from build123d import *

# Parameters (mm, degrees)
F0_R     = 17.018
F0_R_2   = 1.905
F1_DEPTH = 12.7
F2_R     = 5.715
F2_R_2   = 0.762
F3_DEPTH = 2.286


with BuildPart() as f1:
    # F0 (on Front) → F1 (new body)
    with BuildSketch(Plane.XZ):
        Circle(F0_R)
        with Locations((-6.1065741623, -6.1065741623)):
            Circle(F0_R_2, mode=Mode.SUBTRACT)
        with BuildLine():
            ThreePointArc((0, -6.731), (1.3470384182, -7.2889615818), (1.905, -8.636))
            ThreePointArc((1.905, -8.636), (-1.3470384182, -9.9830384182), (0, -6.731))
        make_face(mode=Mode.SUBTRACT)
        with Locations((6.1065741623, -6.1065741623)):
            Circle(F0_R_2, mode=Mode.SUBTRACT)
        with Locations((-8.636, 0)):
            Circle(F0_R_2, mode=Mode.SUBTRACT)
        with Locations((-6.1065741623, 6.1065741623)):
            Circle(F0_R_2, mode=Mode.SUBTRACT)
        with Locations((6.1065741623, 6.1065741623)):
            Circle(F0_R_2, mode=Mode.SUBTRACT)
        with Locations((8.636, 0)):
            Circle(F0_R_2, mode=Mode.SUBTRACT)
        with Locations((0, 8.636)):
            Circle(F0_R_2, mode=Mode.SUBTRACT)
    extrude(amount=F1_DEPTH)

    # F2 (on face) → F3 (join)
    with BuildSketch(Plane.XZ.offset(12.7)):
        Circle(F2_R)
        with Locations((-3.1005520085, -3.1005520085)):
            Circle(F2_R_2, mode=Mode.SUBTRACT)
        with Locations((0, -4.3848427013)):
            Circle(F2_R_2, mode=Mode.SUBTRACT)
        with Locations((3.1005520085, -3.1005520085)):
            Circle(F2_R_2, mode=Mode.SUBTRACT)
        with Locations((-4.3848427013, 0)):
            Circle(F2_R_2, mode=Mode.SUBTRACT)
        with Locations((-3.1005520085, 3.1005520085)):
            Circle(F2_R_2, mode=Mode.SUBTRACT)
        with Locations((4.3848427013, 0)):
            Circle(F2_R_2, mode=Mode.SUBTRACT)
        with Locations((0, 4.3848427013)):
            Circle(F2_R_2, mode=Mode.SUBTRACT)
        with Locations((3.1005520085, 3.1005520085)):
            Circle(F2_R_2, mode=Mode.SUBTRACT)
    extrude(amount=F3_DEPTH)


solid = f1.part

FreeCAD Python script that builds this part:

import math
import FreeCAD as App
import Part
import Sketcher
from FreeCAD import Vector
Q = App.Units.Quantity

doc = App.newDocument("Part")
params = doc.addObject("Spreadsheet::Sheet", "Params")
for row, (alias, value) in enumerate([
    ("sketch1_diameter", "1.34 in"),
    ("sketch1_diameter2", "0.15 in"),
    ("pad1_length", "0.5 in"),
    ("sketch2_diameter", "0.45 in"),
    ("sketch2_diameter2", "0.06 in"),
    ("pad2_length", "0.09 in"),
], start=1):
    params.set(f"A{row}", alias)
    params.set(f"B{row}", "=" + value)
    params.setAlias(f"B{row}", alias)

body = doc.addObject("PartDesign::Body", "Body")

sketch1 = body.newObject("Sketcher::SketchObject", "Sketch")
sketch1.AttachmentSupport = (doc.getObject("XZ_Plane"), [""])
sketch1.MapMode = "FlatFace"
sketch1.addGeometry([
    Part.Circle(Vector(0, 0, 0), Vector(0, 0, 1), 17),
    Part.Circle(Vector(-6.1, -6.1, 0), Vector(0, 0, 1), 1.9),
    Part.ArcOfCircle(Part.Circle(Vector(0, -8.6, 0), Vector(0, 0, 1), 1.9), math.radians(90), math.radians(360)),
    Part.ArcOfCircle(Part.Circle(Vector(0, -8.6, 0), Vector(0, 0, 1), 1.9), math.radians(0), math.radians(90)),
    Part.Circle(Vector(6.1, -6.1, 0), Vector(0, 0, 1), 1.9),
    Part.Circle(Vector(-8.6, 0, 0), Vector(0, 0, 1), 1.9),
    Part.Circle(Vector(-6.1, 6.1, 0), Vector(0, 0, 1), 1.9),
    Part.Circle(Vector(0, 8.6, 0), Vector(0, 0, 1), 1.9),
    Part.Circle(Vector(8.6, 0, 0), Vector(0, 0, 1), 1.9),
    Part.Circle(Vector(6.1, 6.1, 0), Vector(0, 0, 1), 1.9),
], False)
sketch1.addConstraint([
    Sketcher.Constraint("Tangent", 2, 1, 3, 2),
    Sketcher.Constraint("Coincident", 3, 1, 2, 2),
    Sketcher.Constraint("Coincident", 0, 3, -1, 1),
    Sketcher.Constraint("Equal", 1, 2),
    Sketcher.Constraint("Equal", 3, 4),
    Sketcher.Constraint("Equal", 4, 5),
    Sketcher.Constraint("Equal", 5, 6),
    Sketcher.Constraint("Equal", 6, 7),
    Sketcher.Constraint("Equal", 7, 8),
    Sketcher.Constraint("Equal", 8, 9),
    Sketcher.Constraint("Symmetric", 4, 3, 6, 3, -1, 1),
    Sketcher.Constraint("Symmetric", 2, 3, 7, 3, -1, 1),
    Sketcher.Constraint("Symmetric", 5, 3, 8, 3, -1, 1),
    Sketcher.Constraint("Symmetric", 1, 3, 9, 3, -1, 1),
    Sketcher.Constraint("Symmetric", 1, 3, 4, 3, -2),
    Sketcher.Constraint("PointOnObject", 2, 3, -2),
    Sketcher.Constraint("PointOnObject", 5, 3, -1),
    Sketcher.Constraint("PointOnObject", 2, 1, -2),
    Sketcher.Constraint("Horizontal", 2, 3, 3, 1),
    Sketcher.Constraint("Diameter", 0, Q("1.34 in")),
    Sketcher.Constraint("Diameter", 1, Q("0.15 in")),
    Sketcher.Constraint("DistanceY", 2, 3, -1, 1, Q("0.34 in")),
    Sketcher.Constraint("DistanceX", 5, 3, -1, 1, Q("0.34 in")),
    Sketcher.Constraint("DistanceX", 1, 3, 4, 3, 12.213148),
    Sketcher.Constraint("DistanceY", 1, 3, 6, 3, 12.213148),
])
sketch1.setExpression("Constraints[19]", "Params.sketch1_diameter")
sketch1.setExpression("Constraints[20]", "Params.sketch1_diameter2")
pad1 = body.newObject("PartDesign::Pad", "Pad")
pad1.Profile = sketch1
pad1.setExpression("Length", "Params.pad1_length")

sketch2 = body.newObject("Sketcher::SketchObject", "Sketch001")
sketch2.AttachmentSupport = (doc.getObject("XZ_Plane"), [""])
sketch2.MapMode = "FlatFace"
sketch2.AttachmentOffset = App.Placement(Vector(0, 0, 0.5 * 25.4), App.Rotation())
sketch2.addGeometry([
    Part.Circle(Vector(0, 0, 0), Vector(0, 0, 1), 5.7),
    Part.Circle(Vector(-3.1, -3.1, 0), Vector(0, 0, 1), 0.8),
    Part.Circle(Vector(0, -4.4, 0), Vector(0, 0, 1), 0.8),
    Part.Circle(Vector(3.1, -3.1, 0), Vector(0, 0, 1), 0.8),
    Part.Circle(Vector(-4.4, 0, 0), Vector(0, 0, 1), 0.8),
    Part.Circle(Vector(-3.1, 3.1, 0), Vector(0, 0, 1), 0.8),
    Part.Circle(Vector(0, 4.4, 0), Vector(0, 0, 1), 0.8),
    Part.Circle(Vector(4.4, 0, 0), Vector(0, 0, 1), 0.8),
    Part.Circle(Vector(3.1, 3.1, 0), Vector(0, 0, 1), 0.8),
], False)
sketch2.addConstraint([
    Sketcher.Constraint("Coincident", 0, 3, -1, 1),
    Sketcher.Constraint("Equal", 1, 2),
    Sketcher.Constraint("Equal", 2, 3),
    Sketcher.Constraint("Equal", 3, 4),
    Sketcher.Constraint("Equal", 4, 5),
    Sketcher.Constraint("Equal", 5, 6),
    Sketcher.Constraint("Equal", 6, 7),
    Sketcher.Constraint("Equal", 7, 8),
    Sketcher.Constraint("Symmetric", 3, 3, 5, 3, -1, 1),
    Sketcher.Constraint("Symmetric", 2, 3, 6, 3, -1, 1),
    Sketcher.Constraint("Symmetric", 4, 3, 7, 3, -1, 1),
    Sketcher.Constraint("Symmetric", 1, 3, 8, 3, -1, 1),
    Sketcher.Constraint("Symmetric", 1, 3, 3, 3, -2),
    Sketcher.Constraint("PointOnObject", 2, 3, -2),
    Sketcher.Constraint("PointOnObject", 4, 3, -1),
    Sketcher.Constraint("Diameter", 0, Q("0.45 in")),
    Sketcher.Constraint("Diameter", 1, Q("0.06 in")),
    Sketcher.Constraint("DistanceY", 2, 3, 1, 3, 1.284291),
    Sketcher.Constraint("DistanceX", 4, 3, 1, 3, 1.284291),
    Sketcher.Constraint("DistanceX", 1, 3, -1, 1, 3.100552),
    Sketcher.Constraint("DistanceY", 1, 3, -1, 1, 3.100552),
])
sketch2.setExpression("Constraints[15]", "Params.sketch2_diameter")
sketch2.setExpression("Constraints[16]", "Params.sketch2_diameter2")
pad2 = body.newObject("PartDesign::Pad", "Pad001")
pad2.Profile = sketch2
pad2.setExpression("Length", "Params.pad2_length")

doc.recompute()
